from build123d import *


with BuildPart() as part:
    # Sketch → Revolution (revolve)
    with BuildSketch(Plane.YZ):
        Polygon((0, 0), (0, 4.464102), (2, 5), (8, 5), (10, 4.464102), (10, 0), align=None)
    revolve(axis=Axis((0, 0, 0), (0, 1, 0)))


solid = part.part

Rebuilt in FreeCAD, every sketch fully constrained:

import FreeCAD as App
import Part
import Sketcher

V = App.Vector
Q = App.Units.Quantity

doc = App.newDocument("Part")
body = doc.addObject("PartDesign::Body", "Body")

# Sketch on YZ plane
sketch1 = doc.addObject("Sketcher::SketchObject", "Sketch")
body.addObject(sketch1)
sketch1.AttachmentSupport = (doc.YZ_Plane, [""])
sketch1.MapMode = "FlatFace"
sketch1.addGeometry(Part.LineSegment(V(0, 4.464102, 0), V(0, 0, 0)), False)
sketch1.addGeometry(Part.LineSegment(V(0, 0, 0), V(10, 0, 0)), False)
sketch1.addGeometry(Part.LineSegment(V(10, 0, 0), V(10, 4.464102, 0)), False)
sketch1.addGeometry(Part.LineSegment(V(10, 4.464102, 0), V(8, 5, 0)), False)
sketch1.addGeometry(Part.LineSegment(V(8, 5, 0), V(2, 5, 0)), False)
sketch1.addGeometry(Part.LineSegment(V(2, 5, 0), V(0, 4.464102, 0)), False)
sketch1.addConstraint(Sketcher.Constraint("Coincident", 0, 2, 1, 1))
sketch1.addConstraint(Sketcher.Constraint("Coincident", 1, 2, 2, 1))
sketch1.addConstraint(Sketcher.Constraint("Coincident", 2, 2, 3, 1))
sketch1.addConstraint(Sketcher.Constraint("Coincident", 3, 2, 4, 1))
sketch1.addConstraint(Sketcher.Constraint("Coincident", 4, 2, 5, 1))
sketch1.addConstraint(Sketcher.Constraint("Coincident", 5, 2, 0, 1))
sketch1.addConstraint(Sketcher.Constraint("Vertical", 0))
sketch1.addConstraint(Sketcher.Constraint("Horizontal", 1))
sketch1.addConstraint(Sketcher.Constraint("Vertical", 2))
sketch1.addConstraint(Sketcher.Constraint("Horizontal", 4))
sketch1.addConstraint(Sketcher.Constraint("Coincident", 0, 2, -1, 1))
sketch1.addConstraint(Sketcher.Constraint("Horizontal", 2, 2, 5, 2))
sketch1.addConstraint(Sketcher.Constraint("Equal", 3, 5))
sketch1.addConstraint(Sketcher.Constraint("DistanceX", 1, 1, 1, 2, 10.0))
sketch1.addConstraint(Sketcher.Constraint("DistanceX", 4, 2, 4, 1, 6.0))
sketch1.addConstraint(Sketcher.Constraint("Angle", 3, Q("165.00001 deg")))
sketch1.addConstraint(Sketcher.Constraint("DistanceY", -1, 1, 3, 2, 5.0))
revolution = doc.addObject("PartDesign::Revolution", "Revolution")
body.addObject(revolution)
revolution.Profile = sketch1
revolution.ReferenceAxis = (sketch1, ["H_Axis"])
revolution.Angle = 360

doc.recompute()
